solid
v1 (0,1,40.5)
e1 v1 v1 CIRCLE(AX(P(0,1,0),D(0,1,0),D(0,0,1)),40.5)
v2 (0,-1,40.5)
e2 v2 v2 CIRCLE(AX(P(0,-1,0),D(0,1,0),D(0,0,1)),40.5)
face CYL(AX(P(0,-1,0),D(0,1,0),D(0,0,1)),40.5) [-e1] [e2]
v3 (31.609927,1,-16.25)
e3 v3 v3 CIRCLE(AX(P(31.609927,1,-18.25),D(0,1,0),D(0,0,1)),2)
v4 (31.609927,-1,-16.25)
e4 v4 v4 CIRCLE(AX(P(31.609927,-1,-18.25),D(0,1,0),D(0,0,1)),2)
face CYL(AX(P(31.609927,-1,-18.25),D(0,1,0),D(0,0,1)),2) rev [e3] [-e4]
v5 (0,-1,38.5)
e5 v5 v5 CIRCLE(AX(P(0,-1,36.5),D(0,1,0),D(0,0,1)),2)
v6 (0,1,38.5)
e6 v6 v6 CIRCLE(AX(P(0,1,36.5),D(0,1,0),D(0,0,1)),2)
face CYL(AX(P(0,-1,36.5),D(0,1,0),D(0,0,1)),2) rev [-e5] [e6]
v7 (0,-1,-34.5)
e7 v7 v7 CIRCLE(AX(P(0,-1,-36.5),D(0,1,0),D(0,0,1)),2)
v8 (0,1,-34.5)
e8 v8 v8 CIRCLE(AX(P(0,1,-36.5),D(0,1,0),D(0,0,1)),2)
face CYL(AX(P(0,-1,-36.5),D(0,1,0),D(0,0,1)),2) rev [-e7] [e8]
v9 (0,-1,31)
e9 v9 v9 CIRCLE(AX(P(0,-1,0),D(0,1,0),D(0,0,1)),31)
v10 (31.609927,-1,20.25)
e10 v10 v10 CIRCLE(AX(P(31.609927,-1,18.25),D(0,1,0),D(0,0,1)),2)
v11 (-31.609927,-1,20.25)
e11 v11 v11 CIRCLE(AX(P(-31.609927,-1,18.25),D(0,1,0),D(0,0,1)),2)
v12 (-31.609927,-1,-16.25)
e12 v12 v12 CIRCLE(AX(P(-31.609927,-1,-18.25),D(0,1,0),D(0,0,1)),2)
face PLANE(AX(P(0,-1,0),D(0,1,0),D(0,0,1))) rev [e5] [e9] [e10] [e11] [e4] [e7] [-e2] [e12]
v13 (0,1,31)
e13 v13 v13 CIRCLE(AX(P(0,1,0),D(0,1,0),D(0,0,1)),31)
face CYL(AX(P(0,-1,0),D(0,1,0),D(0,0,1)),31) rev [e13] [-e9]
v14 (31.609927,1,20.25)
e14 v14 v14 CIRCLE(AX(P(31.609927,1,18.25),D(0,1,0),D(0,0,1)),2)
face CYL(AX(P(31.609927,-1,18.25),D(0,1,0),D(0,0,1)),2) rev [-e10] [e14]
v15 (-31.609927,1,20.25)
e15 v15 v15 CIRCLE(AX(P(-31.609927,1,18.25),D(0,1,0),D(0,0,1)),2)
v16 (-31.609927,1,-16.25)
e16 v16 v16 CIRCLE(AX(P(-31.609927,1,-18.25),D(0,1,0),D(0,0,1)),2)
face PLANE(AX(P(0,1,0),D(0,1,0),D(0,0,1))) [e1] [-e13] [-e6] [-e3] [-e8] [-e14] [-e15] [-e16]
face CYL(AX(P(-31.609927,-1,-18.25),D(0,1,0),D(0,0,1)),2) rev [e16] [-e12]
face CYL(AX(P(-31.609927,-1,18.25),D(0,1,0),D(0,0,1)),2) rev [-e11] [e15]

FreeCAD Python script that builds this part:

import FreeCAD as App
import Part
import Sketcher
Q = App.Units.Quantity

doc = App.newDocument("Part")
params = doc.addObject("Spreadsheet::Sheet", "Params")
for row, (alias, value) in enumerate([
    ("sketch1_diameter", "81 mm"),
    ("sketch1_diameter2", "4 mm"),
    ("sketch1_diameter3", "62 mm"),
    ("pad1_length", "2 mm"),
], start=1):
    params.set(f"A{row}", alias)
    params.set(f"B{row}", "=" + value)
    params.setAlias(f"B{row}", alias)

body = doc.addObject("PartDesign::Body", "Body")

sketch1 = body.newObject("Sketcher::SketchObject", "Sketch")
sketch1.AttachmentSupport = (doc.getObject("XZ_Plane"), [""])
sketch1.MapMode = "FlatFace"
sketch1.addGeometry(Part.Circle(App.Vector(0, 0, 0), App.Vector(0, 0, 1), 40.5), False)
sketch1.addGeometry(Part.Circle(App.Vector(-31.6, -18.2, 0), App.Vector(0, 0, 1), 2), False)
sketch1.addGeometry(Part.Circle(App.Vector(0, -36.5, 0), App.Vector(0, 0, 1), 2), False)
sketch1.addGeometry(Part.Circle(App.Vector(-31.6, 18.2, 0), App.Vector(0, 0, 1), 2), False)
sketch1.addGeometry(Part.Circle(App.Vector(31.6, -18.2, 0), App.Vector(0, 0, 1), 2), False)
sketch1.addGeometry(Part.Circle(App.Vector(0, 0, 0), App.Vector(0, 0, 1), 31), False)
sketch1.addGeometry(Part.Circle(App.Vector(0, 36.5, 0), App.Vector(0, 0, 1), 2), False)
sketch1.addGeometry(Part.Circle(App.Vector(31.6, 18.2, 0), App.Vector(0, 0, 1), 2), False)
sketch1.addConstraint(Sketcher.Constraint("Coincident", 0, 3, -1, 1))
sketch1.addConstraint(Sketcher.Constraint("Coincident", 5, 3, -1, 1))
sketch1.addConstraint(Sketcher.Constraint("Equal", 1, 2))
sketch1.addConstraint(Sketcher.Constraint("Equal", 2, 3))
sketch1.addConstraint(Sketcher.Constraint("Equal", 3, 4))
sketch1.addConstraint(Sketcher.Constraint("Equal", 4, 6))
sketch1.addConstraint(Sketcher.Constraint("Equal", 6, 7))
sketch1.addConstraint(Sketcher.Constraint("Symmetric", 3, 3, 4, 3, -1, 1))
sketch1.addConstraint(Sketcher.Constraint("Symmetric", 2, 3, 6, 3, -1, 1))
sketch1.addConstraint(Sketcher.Constraint("Symmetric", 1, 3, 7, 3, -1, 1))
sketch1.addConstraint(Sketcher.Constraint("Symmetric", 1, 3, 4, 3, -2))
sketch1.addConstraint(Sketcher.Constraint("PointOnObject", 2, 3, -2))
sketch1.addConstraint(Sketcher.Constraint("Diameter", 0, Q("81 mm")))
sketch1.addConstraint(Sketcher.Constraint("Diameter", 1, Q("4 mm")))
sketch1.addConstraint(Sketcher.Constraint("Diameter", 5, Q("62 mm")))
sketch1.addConstraint(Sketcher.Constraint("DistanceY", 2, 3, -1, 1, Q("36.5 mm")))
sketch1.addConstraint(Sketcher.Constraint("DistanceY", 1, 3, 3, 3, Q("36.5 mm")))
sketch1.addConstraint(Sketcher.Constraint("DistanceX", 1, 3, -1, 1, Q("31.609927 mm")))
sketch1.setExpression("Constraints[12]", "Params.sketch1_diameter")
sketch1.setExpression("Constraints[13]", "Params.sketch1_diameter2")
sketch1.setExpression("Constraints[14]", "Params.sketch1_diameter3")
pad1 = body.newObject("PartDesign::Pad", "Pad")
pad1.Profile = sketch1
pad1.setExpression("Length", "Params.pad1_length")
pad1.Midplane = True

doc.recompute()
